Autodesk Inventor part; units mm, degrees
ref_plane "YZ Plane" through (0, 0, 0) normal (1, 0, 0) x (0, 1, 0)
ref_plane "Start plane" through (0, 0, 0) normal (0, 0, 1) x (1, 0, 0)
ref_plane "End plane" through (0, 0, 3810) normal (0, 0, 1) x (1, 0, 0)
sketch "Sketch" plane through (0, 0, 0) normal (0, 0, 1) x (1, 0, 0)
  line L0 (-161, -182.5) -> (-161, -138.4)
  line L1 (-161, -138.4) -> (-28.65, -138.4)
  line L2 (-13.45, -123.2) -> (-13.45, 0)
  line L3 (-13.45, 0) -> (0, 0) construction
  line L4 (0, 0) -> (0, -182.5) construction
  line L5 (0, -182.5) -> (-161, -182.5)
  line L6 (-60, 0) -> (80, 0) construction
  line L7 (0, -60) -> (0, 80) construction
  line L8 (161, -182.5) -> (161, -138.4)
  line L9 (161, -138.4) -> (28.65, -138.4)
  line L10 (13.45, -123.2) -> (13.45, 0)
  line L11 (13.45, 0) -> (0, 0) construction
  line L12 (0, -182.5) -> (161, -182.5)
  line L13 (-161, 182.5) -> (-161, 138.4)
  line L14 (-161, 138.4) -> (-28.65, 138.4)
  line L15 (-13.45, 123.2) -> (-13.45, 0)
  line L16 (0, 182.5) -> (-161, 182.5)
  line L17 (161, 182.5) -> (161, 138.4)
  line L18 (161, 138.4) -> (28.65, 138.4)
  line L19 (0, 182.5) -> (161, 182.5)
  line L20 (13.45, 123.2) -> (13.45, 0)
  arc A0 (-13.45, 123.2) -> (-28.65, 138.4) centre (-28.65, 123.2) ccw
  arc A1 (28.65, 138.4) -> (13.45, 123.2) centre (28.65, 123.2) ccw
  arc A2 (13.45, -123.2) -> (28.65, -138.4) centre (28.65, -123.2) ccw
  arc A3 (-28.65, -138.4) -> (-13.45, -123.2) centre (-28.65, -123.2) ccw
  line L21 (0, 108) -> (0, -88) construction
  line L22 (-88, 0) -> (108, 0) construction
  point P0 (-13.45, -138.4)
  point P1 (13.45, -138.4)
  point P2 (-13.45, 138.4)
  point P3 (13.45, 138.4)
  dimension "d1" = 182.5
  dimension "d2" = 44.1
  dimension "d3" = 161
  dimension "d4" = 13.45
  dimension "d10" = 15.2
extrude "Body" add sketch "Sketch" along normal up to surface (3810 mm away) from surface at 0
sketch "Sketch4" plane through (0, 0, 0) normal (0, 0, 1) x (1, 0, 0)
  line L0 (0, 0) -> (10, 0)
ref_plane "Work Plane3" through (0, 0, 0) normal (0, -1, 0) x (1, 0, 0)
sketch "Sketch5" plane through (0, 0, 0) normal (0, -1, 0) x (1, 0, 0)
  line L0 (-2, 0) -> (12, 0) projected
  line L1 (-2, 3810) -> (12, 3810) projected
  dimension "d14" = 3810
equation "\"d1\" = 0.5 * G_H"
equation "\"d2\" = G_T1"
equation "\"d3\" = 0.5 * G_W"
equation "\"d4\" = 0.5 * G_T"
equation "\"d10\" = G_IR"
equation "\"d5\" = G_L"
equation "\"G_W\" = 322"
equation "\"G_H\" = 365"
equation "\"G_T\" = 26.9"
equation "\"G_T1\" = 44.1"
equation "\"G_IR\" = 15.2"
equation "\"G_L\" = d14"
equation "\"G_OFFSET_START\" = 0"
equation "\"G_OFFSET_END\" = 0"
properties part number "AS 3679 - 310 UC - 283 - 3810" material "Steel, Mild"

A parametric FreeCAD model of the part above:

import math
import FreeCAD as App
import Part
import Sketcher

V = App.Vector
Q = App.Units.Quantity

doc = App.newDocument("Part")
body = doc.addObject("PartDesign::Body", "Body")

sketch1 = body.newObject("Sketcher::SketchObject", "Sketch")
sketch1.AttachmentSupport = (doc.getObject("XY_Plane"), [""])
sketch1.MapMode = "FlatFace"
sketch1.addGeometry([
    Part.LineSegment(V(-161, -138.4, 0), V(-161, -182.5, 0)),
    Part.LineSegment(V(-161, -182.5, 0), V(161, -182.5, 0)),
    Part.LineSegment(V(161, -182.5, 0), V(161, -138.4, 0)),
    Part.LineSegment(V(161, -138.4, 0), V(28.65, -138.4, 0)),
    Part.ArcOfCircle(Part.Circle(V(28.65, -123.2, 0), V(0, 0, 1), 15.2), math.radians(180), math.radians(270)),
    Part.LineSegment(V(13.45, -123.2, 0), V(13.45, 123.2, 0)),
    Part.ArcOfCircle(Part.Circle(V(28.65, 123.2, 0), V(0, 0, 1), 15.2), math.radians(90), math.radians(180)),
    Part.LineSegment(V(28.65, 138.4, 0), V(161, 138.4, 0)),
    Part.LineSegment(V(161, 138.4, 0), V(161, 182.5, 0)),
    Part.LineSegment(V(161, 182.5, 0), V(-161, 182.5, 0)),
    Part.LineSegment(V(-161, 182.5, 0), V(-161, 138.4, 0)),
    Part.LineSegment(V(-161, 138.4, 0), V(-28.65, 138.4, 0)),
    Part.ArcOfCircle(Part.Circle(V(-28.65, 123.2, 0), V(0, 0, 1), 15.2), math.radians(0), math.radians(90)),
    Part.LineSegment(V(-13.45, 123.2, 0), V(-13.45, -123.2, 0)),
    Part.ArcOfCircle(Part.Circle(V(-28.65, -123.2, 0), V(0, 0, 1), 15.2), math.radians(-90), math.radians(0)),
    Part.LineSegment(V(-28.65, -138.4, 0), V(-161, -138.4, 0)),
], False)
sketch1.addConstraint([
    Sketcher.Constraint("Coincident", 0, 2, 1, 1),
    Sketcher.Constraint("Coincident", 1, 2, 2, 1),
    Sketcher.Constraint("Coincident", 2, 2, 3, 1),
    Sketcher.Constraint("Tangent", 3, 2, 4, 2),
    Sketcher.Constraint("Tangent", 4, 1, 5, 1),
    Sketcher.Constraint("Tangent", 5, 2, 6, 2),
    Sketcher.Constraint("Tangent", 6, 1, 7, 1),
    Sketcher.Constraint("Coincident", 7, 2, 8, 1),
    Sketcher.Constraint("Coincident", 8, 2, 9, 1),
    Sketcher.Constraint("Coincident", 9, 2, 10, 1),
    Sketcher.Constraint("Coincident", 10, 2, 11, 1),
    Sketcher.Constraint("Tangent", 11, 2, 12, 2),
    Sketcher.Constraint("Tangent", 12, 1, 13, 1),
    Sketcher.Constraint("Tangent", 13, 2, 14, 2),
    Sketcher.Constraint("Tangent", 14, 1, 15, 1),
    Sketcher.Constraint("Coincident", 15, 2, 0, 1),
    Sketcher.Constraint("Vertical", 0),
    Sketcher.Constraint("Horizontal", 1),
    Sketcher.Constraint("Vertical", 2),
    Sketcher.Constraint("Horizontal", 3),
    Sketcher.Constraint("Vertical", 5),
    Sketcher.Constraint("Horizontal", 7),
    Sketcher.Constraint("Vertical", 8),
    Sketcher.Constraint("Horizontal", 9),
    Sketcher.Constraint("Vertical", 10),
    Sketcher.Constraint("Horizontal", 11),
    Sketcher.Constraint("Vertical", 13),
    Sketcher.Constraint("Horizontal", 15),
    Sketcher.Constraint("Equal", 4, 6),
    Sketcher.Constraint("Equal", 6, 12),
    Sketcher.Constraint("Equal", 12, 14),
    Sketcher.Constraint("Symmetric", 4, 3, 12, 3, -1, 1),
    Sketcher.Constraint("Symmetric", 0, 2, 8, 2, -1, 1),
    Sketcher.Constraint("Symmetric", 7, 2, 10, 2, -2),
    Sketcher.Constraint("Symmetric", 2, 2, 15, 2, -2),
    Sketcher.Constraint("Radius", 4, Q("15.2 mm")),
    Sketcher.Constraint("DistanceY", 0, 2, 0, 1, Q("44.1 mm")),
    Sketcher.Constraint("DistanceX", 0, 2, -1, 1, Q("161 mm")),
    Sketcher.Constraint("DistanceY", 0, 2, -1, 1, Q("182.5 mm")),
    Sketcher.Constraint("DistanceX", -1, 1, 4, 1, Q("13.45 mm")),
])
pad1 = body.newObject("PartDesign::Pad", "Pad")
pad1.Profile = sketch1
pad1.Length = 3810

doc.recompute()
